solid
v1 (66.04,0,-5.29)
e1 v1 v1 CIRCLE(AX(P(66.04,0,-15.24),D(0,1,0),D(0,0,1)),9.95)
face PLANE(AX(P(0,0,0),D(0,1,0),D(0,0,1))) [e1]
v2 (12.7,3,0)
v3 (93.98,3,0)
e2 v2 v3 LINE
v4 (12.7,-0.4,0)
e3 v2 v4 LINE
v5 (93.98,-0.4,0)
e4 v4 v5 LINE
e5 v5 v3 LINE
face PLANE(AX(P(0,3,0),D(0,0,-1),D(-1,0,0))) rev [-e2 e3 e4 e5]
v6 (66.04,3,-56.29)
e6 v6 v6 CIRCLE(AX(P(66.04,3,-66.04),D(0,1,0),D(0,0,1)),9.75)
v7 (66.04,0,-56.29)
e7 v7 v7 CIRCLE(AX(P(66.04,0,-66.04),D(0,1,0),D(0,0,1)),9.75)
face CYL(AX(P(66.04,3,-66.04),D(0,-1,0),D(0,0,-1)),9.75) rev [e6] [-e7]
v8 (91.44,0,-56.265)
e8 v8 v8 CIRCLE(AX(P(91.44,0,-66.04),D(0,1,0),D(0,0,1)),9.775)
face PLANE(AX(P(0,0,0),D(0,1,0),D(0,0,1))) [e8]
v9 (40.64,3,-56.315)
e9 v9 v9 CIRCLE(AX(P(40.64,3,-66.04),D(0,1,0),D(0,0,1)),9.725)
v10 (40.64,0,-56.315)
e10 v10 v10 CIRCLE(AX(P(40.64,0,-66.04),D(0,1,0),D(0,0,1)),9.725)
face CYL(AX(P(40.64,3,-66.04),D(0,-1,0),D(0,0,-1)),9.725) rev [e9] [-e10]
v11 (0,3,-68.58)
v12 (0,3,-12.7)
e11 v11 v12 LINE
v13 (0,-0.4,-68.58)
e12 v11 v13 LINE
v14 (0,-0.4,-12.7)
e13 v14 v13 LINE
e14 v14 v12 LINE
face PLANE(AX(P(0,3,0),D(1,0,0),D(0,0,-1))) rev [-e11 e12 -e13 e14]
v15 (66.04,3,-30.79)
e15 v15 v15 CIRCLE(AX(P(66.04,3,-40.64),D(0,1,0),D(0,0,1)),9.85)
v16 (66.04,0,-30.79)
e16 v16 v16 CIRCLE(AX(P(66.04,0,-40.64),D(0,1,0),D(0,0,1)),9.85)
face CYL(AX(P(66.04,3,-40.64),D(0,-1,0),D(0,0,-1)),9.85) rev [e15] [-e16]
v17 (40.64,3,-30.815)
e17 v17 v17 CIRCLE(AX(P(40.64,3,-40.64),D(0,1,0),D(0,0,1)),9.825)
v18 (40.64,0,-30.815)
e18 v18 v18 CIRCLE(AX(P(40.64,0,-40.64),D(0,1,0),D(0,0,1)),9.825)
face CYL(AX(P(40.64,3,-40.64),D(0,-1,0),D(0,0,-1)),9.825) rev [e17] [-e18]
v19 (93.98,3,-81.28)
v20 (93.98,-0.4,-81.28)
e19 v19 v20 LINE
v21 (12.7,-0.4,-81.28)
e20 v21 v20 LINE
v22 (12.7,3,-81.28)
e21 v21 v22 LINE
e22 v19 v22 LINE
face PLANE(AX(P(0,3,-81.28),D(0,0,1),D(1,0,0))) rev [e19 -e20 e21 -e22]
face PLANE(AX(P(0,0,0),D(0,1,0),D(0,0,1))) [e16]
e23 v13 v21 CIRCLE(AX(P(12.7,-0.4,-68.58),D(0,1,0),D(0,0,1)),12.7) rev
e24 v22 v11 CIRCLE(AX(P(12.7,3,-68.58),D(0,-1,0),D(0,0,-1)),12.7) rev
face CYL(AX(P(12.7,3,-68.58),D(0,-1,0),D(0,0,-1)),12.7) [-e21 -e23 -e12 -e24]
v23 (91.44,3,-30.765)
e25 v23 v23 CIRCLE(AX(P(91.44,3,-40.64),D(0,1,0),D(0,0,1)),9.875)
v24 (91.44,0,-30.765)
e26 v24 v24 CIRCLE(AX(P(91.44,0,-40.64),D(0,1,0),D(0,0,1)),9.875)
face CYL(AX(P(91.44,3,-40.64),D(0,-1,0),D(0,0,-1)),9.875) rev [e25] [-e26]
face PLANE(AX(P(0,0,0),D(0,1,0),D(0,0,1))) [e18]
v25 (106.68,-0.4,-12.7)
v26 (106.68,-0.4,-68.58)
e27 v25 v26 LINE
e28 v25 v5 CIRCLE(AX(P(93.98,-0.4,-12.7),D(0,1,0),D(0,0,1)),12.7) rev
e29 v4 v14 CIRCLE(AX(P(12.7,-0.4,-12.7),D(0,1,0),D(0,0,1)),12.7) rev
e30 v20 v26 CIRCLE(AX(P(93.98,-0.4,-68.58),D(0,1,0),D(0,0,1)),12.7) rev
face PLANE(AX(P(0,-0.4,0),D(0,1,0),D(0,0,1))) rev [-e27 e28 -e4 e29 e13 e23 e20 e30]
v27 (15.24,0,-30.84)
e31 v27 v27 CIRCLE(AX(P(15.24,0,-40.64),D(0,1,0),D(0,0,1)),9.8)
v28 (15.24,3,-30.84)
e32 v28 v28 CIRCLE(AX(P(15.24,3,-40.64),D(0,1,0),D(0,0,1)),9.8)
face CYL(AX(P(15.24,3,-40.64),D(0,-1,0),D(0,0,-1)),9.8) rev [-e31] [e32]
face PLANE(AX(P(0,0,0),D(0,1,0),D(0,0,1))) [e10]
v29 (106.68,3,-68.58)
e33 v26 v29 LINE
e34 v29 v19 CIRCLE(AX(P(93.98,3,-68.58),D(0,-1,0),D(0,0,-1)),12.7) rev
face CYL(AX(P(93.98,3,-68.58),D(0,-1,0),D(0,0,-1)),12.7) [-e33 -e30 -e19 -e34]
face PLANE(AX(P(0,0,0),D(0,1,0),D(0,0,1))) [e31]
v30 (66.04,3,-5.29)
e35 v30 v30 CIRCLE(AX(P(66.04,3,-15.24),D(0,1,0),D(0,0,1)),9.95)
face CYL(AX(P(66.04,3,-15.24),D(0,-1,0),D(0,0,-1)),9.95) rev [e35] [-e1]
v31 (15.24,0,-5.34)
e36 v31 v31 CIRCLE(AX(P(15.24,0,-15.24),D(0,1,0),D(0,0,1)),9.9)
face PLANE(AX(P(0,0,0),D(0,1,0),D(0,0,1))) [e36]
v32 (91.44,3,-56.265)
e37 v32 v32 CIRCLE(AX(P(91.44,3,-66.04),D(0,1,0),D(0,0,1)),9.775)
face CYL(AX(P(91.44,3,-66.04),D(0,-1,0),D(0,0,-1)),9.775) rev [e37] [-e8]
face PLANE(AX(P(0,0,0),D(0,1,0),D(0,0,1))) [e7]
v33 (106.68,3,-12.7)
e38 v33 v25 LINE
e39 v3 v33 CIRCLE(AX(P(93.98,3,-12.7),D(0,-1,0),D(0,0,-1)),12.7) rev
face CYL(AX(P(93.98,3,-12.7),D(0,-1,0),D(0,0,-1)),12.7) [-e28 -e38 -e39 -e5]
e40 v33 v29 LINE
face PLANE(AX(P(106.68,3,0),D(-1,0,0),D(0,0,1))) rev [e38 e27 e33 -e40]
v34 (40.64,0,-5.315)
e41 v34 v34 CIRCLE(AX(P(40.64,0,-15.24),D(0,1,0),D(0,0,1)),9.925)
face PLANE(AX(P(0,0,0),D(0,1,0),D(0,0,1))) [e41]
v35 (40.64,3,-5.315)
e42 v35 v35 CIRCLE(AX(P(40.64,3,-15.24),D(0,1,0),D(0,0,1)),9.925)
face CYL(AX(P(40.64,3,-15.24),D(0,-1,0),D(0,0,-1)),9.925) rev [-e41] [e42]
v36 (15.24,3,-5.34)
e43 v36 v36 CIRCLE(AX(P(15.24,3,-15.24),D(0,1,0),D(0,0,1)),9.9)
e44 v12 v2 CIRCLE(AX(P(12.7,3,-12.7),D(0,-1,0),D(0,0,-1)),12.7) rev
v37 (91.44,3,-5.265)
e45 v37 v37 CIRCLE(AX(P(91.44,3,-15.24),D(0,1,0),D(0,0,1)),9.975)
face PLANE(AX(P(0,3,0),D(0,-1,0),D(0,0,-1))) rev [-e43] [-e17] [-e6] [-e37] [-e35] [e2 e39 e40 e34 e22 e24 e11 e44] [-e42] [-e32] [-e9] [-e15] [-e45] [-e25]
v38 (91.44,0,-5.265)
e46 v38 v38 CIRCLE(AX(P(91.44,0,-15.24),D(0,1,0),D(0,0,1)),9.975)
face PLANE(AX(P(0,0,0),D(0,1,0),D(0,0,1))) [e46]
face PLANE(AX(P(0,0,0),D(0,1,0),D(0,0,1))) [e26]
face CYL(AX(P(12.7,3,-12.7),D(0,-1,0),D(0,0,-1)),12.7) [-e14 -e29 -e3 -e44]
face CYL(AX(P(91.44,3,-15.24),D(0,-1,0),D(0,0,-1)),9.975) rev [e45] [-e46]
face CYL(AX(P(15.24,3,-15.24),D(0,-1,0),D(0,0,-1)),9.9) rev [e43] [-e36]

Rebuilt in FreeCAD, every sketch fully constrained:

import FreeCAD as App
import Part
import Sketcher
Q = App.Units.Quantity


def edges_at(feature, points):
    """Names of the edges that pass closest to the given points."""
    edges = feature.Shape.Edges
    near = lambda p: min(range(len(edges)), key=lambda i: edges[i].distToShape(Part.Vertex(*p))[0])
    return sorted({f"Edge{near(p) + 1}" for p in points})

doc = App.newDocument("Part")
body = doc.addObject("PartDesign::Body", "Body")

sketch1 = doc.addObject("Sketcher::SketchObject", "Sketch")
body.addObject(sketch1)
sketch1.AttachmentSupport = (doc.XZ_Plane, [""])
sketch1.MapMode = "FlatFace"
sketch1.addGeometry(Part.LineSegment(App.Vector(0, -81, 0), App.Vector(0, 0, 0)), False)
sketch1.addGeometry(Part.LineSegment(App.Vector(0, 0, 0), App.Vector(107, 0, 0)), False)
sketch1.addGeometry(Part.LineSegment(App.Vector(107, 0, 0), App.Vector(107, -81, 0)), False)
sketch1.addGeometry(Part.LineSegment(App.Vector(107, -81, 0), App.Vector(0, -81, 0)), False)
sketch1.addGeometry(Part.Circle(App.Vector(15, -15, 0), App.Vector(0, 0, 1), 10), False)
sketch1.addGeometry(Part.Circle(App.Vector(41, -15, 0), App.Vector(0, 0, 1), 10), False)
sketch1.addGeometry(Part.Circle(App.Vector(66, -15, 0), App.Vector(0, 0, 1), 10), False)
sketch1.addGeometry(Part.Circle(App.Vector(91, -15, 0), App.Vector(0, 0, 1), 10), False)
sketch1.addGeometry(Part.Circle(App.Vector(15, -41, 0), App.Vector(0, 0, 1), 10), False)
sketch1.addGeometry(Part.Circle(App.Vector(41, -41, 0), App.Vector(0, 0, 1), 10), False)
sketch1.addGeometry(Part.Circle(App.Vector(41, -66, 0), App.Vector(0, 0, 1), 10), False)
sketch1.addGeometry(Part.Circle(App.Vector(66, -41, 0), App.Vector(0, 0, 1), 10), False)
sketch1.addGeometry(Part.Circle(App.Vector(91, -41, 0), App.Vector(0, 0, 1), 10), False)
sketch1.addGeometry(Part.Circle(App.Vector(66, -66, 0), App.Vector(0, 0, 1), 10), False)
sketch1.addGeometry(Part.Circle(App.Vector(91, -66, 0), App.Vector(0, 0, 1), 10), False)
sketch1.addConstraint(Sketcher.Constraint("Coincident", 0, 2, 1, 1))
sketch1.addConstraint(Sketcher.Constraint("Coincident", 1, 2, 2, 1))
sketch1.addConstraint(Sketcher.Constraint("Coincident", 2, 2, 3, 1))
sketch1.addConstraint(Sketcher.Constraint("Coincident", 3, 2, 0, 1))
sketch1.addConstraint(Sketcher.Constraint("Vertical", 0))
sketch1.addConstraint(Sketcher.Constraint("Horizontal", 1))
sketch1.addConstraint(Sketcher.Constraint("Vertical", 2))
sketch1.addConstraint(Sketcher.Constraint("Horizontal", 3))
sketch1.addConstraint(Sketcher.Constraint("Coincident", 0, 2, -1, 1))
sketch1.addConstraint(Sketcher.Constraint("Horizontal", 4, 3, 5, 3))
sketch1.addConstraint(Sketcher.Constraint("Horizontal", 5, 3, 6, 3))
sketch1.addConstraint(Sketcher.Constraint("Horizontal", 6, 3, 7, 3))
sketch1.addConstraint(Sketcher.Constraint("Horizontal", 8, 3, 9, 3))
sketch1.addConstraint(Sketcher.Constraint("Horizontal", 9, 3, 11, 3))
sketch1.addConstraint(Sketcher.Constraint("Horizontal", 11, 3, 12, 3))
sketch1.addConstraint(Sketcher.Constraint("Horizontal", 10, 3, 13, 3))
sketch1.addConstraint(Sketcher.Constraint("Horizontal", 13, 3, 14, 3))
sketch1.addConstraint(Sketcher.Constraint("Vertical", 4, 3, 8, 3))
sketch1.addConstraint(Sketcher.Constraint("Vertical", 5, 3, 9, 3))
sketch1.addConstraint(Sketcher.Constraint("Vertical", 9, 3, 10, 3))
sketch1.addConstraint(Sketcher.Constraint("Vertical", 6, 3, 11, 3))
sketch1.addConstraint(Sketcher.Constraint("Vertical", 7, 3, 12, 3))
sketch1.addConstraint(Sketcher.Constraint("Vertical", 11, 3, 13, 3))
sketch1.addConstraint(Sketcher.Constraint("Vertical", 12, 3, 14, 3))
sketch1.addConstraint(Sketcher.Constraint("Diameter", 4, Q("19.8 mm")))
sketch1.addConstraint(Sketcher.Constraint("Diameter", 6, Q("19.9 mm")))
sketch1.addConstraint(Sketcher.Constraint("Diameter", 8, Q("19.6 mm")))
sketch1.addConstraint(Sketcher.Constraint("Diameter", 11, Q("19.7 mm")))
sketch1.addConstraint(Sketcher.Constraint("Diameter", 13, Q("19.5 mm")))
sketch1.addConstraint(Sketcher.Constraint("Diameter", 5, Q("19.85 mm")))
sketch1.addConstraint(Sketcher.Constraint("Diameter", 7, Q("19.95 mm")))
sketch1.addConstraint(Sketcher.Constraint("Diameter", 9, Q("19.65 mm")))
sketch1.addConstraint(Sketcher.Constraint("Diameter", 10, Q("19.45 mm")))
sketch1.addConstraint(Sketcher.Constraint("Diameter", 12, Q("19.75 mm")))
sketch1.addConstraint(Sketcher.Constraint("Diameter", 14, Q("19.55 mm")))
sketch1.addConstraint(Sketcher.Constraint("DistanceX", 1, 1, 1, 2, Q("106.68 mm")))
sketch1.addConstraint(Sketcher.Constraint("DistanceY", 0, 1, 0, 2, Q("81.28 mm")))
sketch1.addConstraint(Sketcher.Constraint("DistanceX", 4, 3, 5, 3, Q("25.4 mm")))
sketch1.addConstraint(Sketcher.Constraint("DistanceX", 5, 3, 6, 3, Q("25.4 mm")))
sketch1.addConstraint(Sketcher.Constraint("DistanceX", 6, 3, 7, 3, Q("25.4 mm")))
sketch1.addConstraint(Sketcher.Constraint("DistanceY", 8, 3, 4, 3, Q("25.4 mm")))
sketch1.addConstraint(Sketcher.Constraint("DistanceY", 10, 3, 9, 3, Q("25.4 mm")))
sketch1.addConstraint(Sketcher.Constraint("DistanceX", -1, 1, 4, 3, Q("15.24 mm")))
sketch1.addConstraint(Sketcher.Constraint("DistanceY", 4, 3, -1, 1, Q("15.24 mm")))
pad1 = doc.addObject("PartDesign::Pad", "Pad")
body.addObject(pad1)
pad1.Profile = sketch1
pad1.Length = 3
pad1.Reversed = True

sketch2 = doc.addObject("Sketcher::SketchObject", "Sketch001")
body.addObject(sketch2)
sketch2.AttachmentSupport = (doc.XZ_Plane, [""])
sketch2.MapMode = "FlatFace"
sketch2.AttachmentOffset = App.Placement(App.Vector(0, 0, 0.4), App.Rotation())
sketch2.addGeometry(Part.LineSegment(App.Vector(0, -81, 0), App.Vector(0, 0, 0)), False)
sketch2.addGeometry(Part.LineSegment(App.Vector(0, 0, 0), App.Vector(107, 0, 0)), False)
sketch2.addGeometry(Part.LineSegment(App.Vector(107, 0, 0), App.Vector(107, -81, 0)), False)
sketch2.addGeometry(Part.LineSegment(App.Vector(107, -81, 0), App.Vector(0, -81, 0)), False)
sketch2.addConstraint(Sketcher.Constraint("Coincident", 0, 2, 1, 1))
sketch2.addConstraint(Sketcher.Constraint("Coincident", 1, 2, 2, 1))
sketch2.addConstraint(Sketcher.Constraint("Coincident", 2, 2, 3, 1))
sketch2.addConstraint(Sketcher.Constraint("Coincident", 3, 2, 0, 1))
sketch2.addConstraint(Sketcher.Constraint("Vertical", 0))
sketch2.addConstraint(Sketcher.Constraint("Horizontal", 1))
sketch2.addConstraint(Sketcher.Constraint("Vertical", 2))
sketch2.addConstraint(Sketcher.Constraint("Horizontal", 3))
sketch2.addConstraint(Sketcher.Constraint("Coincident", 0, 2, -1, 1))
sketch2.addConstraint(Sketcher.Constraint("DistanceX", 1, 1, 1, 2, Q("106.68 mm")))
sketch2.addConstraint(Sketcher.Constraint("DistanceY", 0, 1, 0, 2, Q("81.28 mm")))
pad2 = doc.addObject("PartDesign::Pad", "Pad001")
body.addObject(pad2)
pad2.Profile = sketch2
pad2.Length = 0.4
pad2.Reversed = True
doc.recompute()

fillet = doc.addObject("PartDesign::Fillet", "Fillet")
body.addObject(fillet)
fillet.Base = (pad2, edges_at(pad2, [
    (0, 1.3, -81.28),
    (106.68, 1.3, -81.28),
    (106.68, 1.3, 0),
    (0, 1.3, 0),
]))
fillet.Radius = 12.7

doc.recompute()
